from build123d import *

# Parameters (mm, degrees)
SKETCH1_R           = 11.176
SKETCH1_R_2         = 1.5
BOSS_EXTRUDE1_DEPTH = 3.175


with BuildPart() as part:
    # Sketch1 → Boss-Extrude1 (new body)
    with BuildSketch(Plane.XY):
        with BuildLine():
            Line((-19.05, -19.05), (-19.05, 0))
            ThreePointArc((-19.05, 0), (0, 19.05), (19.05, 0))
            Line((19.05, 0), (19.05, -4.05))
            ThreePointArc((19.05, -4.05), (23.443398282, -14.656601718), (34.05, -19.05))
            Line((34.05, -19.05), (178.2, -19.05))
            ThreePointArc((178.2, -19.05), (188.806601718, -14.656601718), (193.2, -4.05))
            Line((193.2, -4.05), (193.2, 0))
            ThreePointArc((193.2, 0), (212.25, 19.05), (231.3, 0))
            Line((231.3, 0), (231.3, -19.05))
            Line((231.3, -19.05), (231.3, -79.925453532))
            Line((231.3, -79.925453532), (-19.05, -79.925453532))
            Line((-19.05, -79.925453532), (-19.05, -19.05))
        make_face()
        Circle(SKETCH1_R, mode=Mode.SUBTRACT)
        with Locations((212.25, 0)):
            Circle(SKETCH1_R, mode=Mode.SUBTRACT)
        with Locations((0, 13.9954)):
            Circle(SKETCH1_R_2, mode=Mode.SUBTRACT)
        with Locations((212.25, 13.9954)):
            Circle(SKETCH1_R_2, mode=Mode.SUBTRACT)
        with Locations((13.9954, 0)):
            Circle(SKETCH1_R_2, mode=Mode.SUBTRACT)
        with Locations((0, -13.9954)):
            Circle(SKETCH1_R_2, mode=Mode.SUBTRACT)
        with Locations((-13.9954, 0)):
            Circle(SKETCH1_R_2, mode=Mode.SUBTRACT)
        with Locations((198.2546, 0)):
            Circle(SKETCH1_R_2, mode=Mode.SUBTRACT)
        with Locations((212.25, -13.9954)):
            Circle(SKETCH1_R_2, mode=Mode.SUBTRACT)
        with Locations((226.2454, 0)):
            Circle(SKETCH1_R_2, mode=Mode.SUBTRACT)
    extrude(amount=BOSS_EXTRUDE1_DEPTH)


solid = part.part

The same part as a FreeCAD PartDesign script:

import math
import FreeCAD as App
import Part
import Sketcher
from FreeCAD import Vector
Q = App.Units.Quantity

doc = App.newDocument("Part")
body = doc.addObject("PartDesign::Body", "Body")

# Sketch on XY plane
sketch1 = body.newObject("Sketcher::SketchObject", "Sketch")
sketch1.AttachmentSupport = (doc.getObject("XY_Plane"), [""])
sketch1.MapMode = "FlatFace"
sketch1.addGeometry([
    Part.ArcOfCircle(Part.Circle(Vector(0, 0, 0), Vector(0, 0, 1), 19.05), math.radians(0), math.radians(180)),  # 0
    Part.LineSegment(Vector(-19.05, 0, 0), Vector(-19.05, -79.925454, 0)),  # 1
    Part.LineSegment(Vector(-19.05, -79.925454, 0), Vector(231.3, -79.925454, 0)),  # 2
    Part.LineSegment(Vector(231.3, -79.925454, 0), Vector(231.3, 0, 0)),  # 3
    Part.ArcOfCircle(Part.Circle(Vector(212.25, 0, 0), Vector(0, 0, 1), 19.05), math.radians(0), math.radians(180)),  # 4
    Part.LineSegment(Vector(193.2, 0, 0), Vector(193.2, -4.05, 0)),  # 5
    Part.ArcOfCircle(Part.Circle(Vector(178.2, -4.05, 0), Vector(0, 0, 1), 15), math.radians(-90), math.radians(0)),  # 6
    Part.LineSegment(Vector(178.2, -19.05, 0), Vector(34.05, -19.05, 0)),  # 7
    Part.ArcOfCircle(Part.Circle(Vector(34.05, -4.05, 0), Vector(0, 0, 1), 15), math.radians(180), math.radians(270)),  # 8
    Part.LineSegment(Vector(19.05, -4.05, 0), Vector(19.05, 0, 0)),  # 9
    Part.Circle(Vector(212.25, -13.9954, 0), Vector(0, 0, 1), 1.5),  # 10
    Part.Circle(Vector(226.2454, 0, 0), Vector(0, 0, 1), 1.5),  # 11
    Part.Circle(Vector(212.25, 0, 0), Vector(0, 0, 1), 11.176),  # 12
    Part.Circle(Vector(198.2546, 0, 0), Vector(0, 0, 1), 1.5),  # 13
    Part.Circle(Vector(0, -13.9954, 0), Vector(0, 0, 1), 1.5),  # 14
    Part.Circle(Vector(13.9954, 0, 0), Vector(0, 0, 1), 1.5),  # 15
    Part.Circle(Vector(0, 0, 0), Vector(0, 0, 1), 11.176),  # 16
    Part.Circle(Vector(-13.9954, 0, 0), Vector(0, 0, 1), 1.5),  # 17
    Part.Circle(Vector(212.25, 13.9954, 0), Vector(0, 0, 1), 1.5),  # 18
    Part.Circle(Vector(0, 13.9954, 0), Vector(0, 0, 1), 1.5),  # 19
], False)
sketch1.addConstraint([
    Sketcher.Constraint("Tangent", 0, 2, 1, 1),
    Sketcher.Constraint("Coincident", 1, 2, 2, 1),
    Sketcher.Constraint("Coincident", 2, 2, 3, 1),
    Sketcher.Constraint("Tangent", 3, 2, 4, 1),
    Sketcher.Constraint("Tangent", 4, 2, 5, 1),
    Sketcher.Constraint("Tangent", 5, 2, 6, 2),
    Sketcher.Constraint("Tangent", 6, 1, 7, 1),
    Sketcher.Constraint("Tangent", 7, 2, 8, 2),
    Sketcher.Constraint("Tangent", 8, 1, 9, 1),
    Sketcher.Constraint("Tangent", 9, 2, 0, 1),
    Sketcher.Constraint("Vertical", 1),
    Sketcher.Constraint("Horizontal", 2),
    Sketcher.Constraint("Vertical", 3),
    Sketcher.Constraint("Vertical", 5),
    Sketcher.Constraint("Horizontal", 7),
    Sketcher.Constraint("Vertical", 9),
    Sketcher.Constraint("Coincident", 0, 3, -1, 1),
    Sketcher.Constraint("Coincident", 16, 3, -1, 1),
    Sketcher.Constraint("Coincident", 12, 3, 4, 3),
    Sketcher.Constraint("Equal", 0, 4),
    Sketcher.Constraint("Equal", 6, 8),
    Sketcher.Constraint("Equal", 10, 11),
    Sketcher.Constraint("Equal", 11, 13),
    Sketcher.Constraint("Equal", 13, 14),
    Sketcher.Constraint("Equal", 14, 15),
    Sketcher.Constraint("Equal", 12, 16),
    Sketcher.Constraint("Equal", 15, 17),
    Sketcher.Constraint("Equal", 17, 18),
    Sketcher.Constraint("Equal", 18, 19),
    Sketcher.Constraint("Symmetric", 15, 3, 17, 3, -1, 1),
    Sketcher.Constraint("Symmetric", 14, 3, 19, 3, -1, 1),
    Sketcher.Constraint("Symmetric", 10, 3, 18, 3, -1),
    Sketcher.Constraint("PointOnObject", 4, 3, -1),
    Sketcher.Constraint("PointOnObject", 11, 3, -1),
    Sketcher.Constraint("PointOnObject", 13, 3, -1),
    Sketcher.Constraint("PointOnObject", 14, 3, -2),
    Sketcher.Constraint("PointOnObject", 15, 3, -1),
    Sketcher.Constraint("Horizontal", 10, 3, 14, 3),
    Sketcher.Constraint("Vertical", 4, 3, 10, 3),
    Sketcher.Constraint("Diameter", 12, Q("0.88 in")),
    Sketcher.Constraint("Radius", 0, Q("0.75 in")),
    Sketcher.Constraint("Diameter", 10, Q("3 mm")),
    Sketcher.Constraint("DistanceY", 6, 1, -1, 1, Q("0.75 in")),
    Sketcher.Constraint("Radius", 6, Q("15 mm")),
    Sketcher.Constraint("DistanceY", 10, 3, -1, 1, Q("0.551 in")),
    Sketcher.Constraint("DistanceX", -1, 1, 15, 3, Q("0.551 in")),
    Sketcher.Constraint("DistanceX", 4, 3, 11, 3, Q("0.551 in")),
    Sketcher.Constraint("DistanceX", 13, 3, 4, 3, Q("0.551 in")),
    Sketcher.Constraint("DistanceX", 2, 1, 2, 2, Q("250.35 mm")),
    Sketcher.Constraint("DistanceY", 1, 2, 1, 1, Q("79.925454 mm")),
])
pad1 = body.newObject("PartDesign::Pad", "Pad")
pad1.Profile = sketch1
pad1.Length = Q("0.125 in")

doc.recompute()
